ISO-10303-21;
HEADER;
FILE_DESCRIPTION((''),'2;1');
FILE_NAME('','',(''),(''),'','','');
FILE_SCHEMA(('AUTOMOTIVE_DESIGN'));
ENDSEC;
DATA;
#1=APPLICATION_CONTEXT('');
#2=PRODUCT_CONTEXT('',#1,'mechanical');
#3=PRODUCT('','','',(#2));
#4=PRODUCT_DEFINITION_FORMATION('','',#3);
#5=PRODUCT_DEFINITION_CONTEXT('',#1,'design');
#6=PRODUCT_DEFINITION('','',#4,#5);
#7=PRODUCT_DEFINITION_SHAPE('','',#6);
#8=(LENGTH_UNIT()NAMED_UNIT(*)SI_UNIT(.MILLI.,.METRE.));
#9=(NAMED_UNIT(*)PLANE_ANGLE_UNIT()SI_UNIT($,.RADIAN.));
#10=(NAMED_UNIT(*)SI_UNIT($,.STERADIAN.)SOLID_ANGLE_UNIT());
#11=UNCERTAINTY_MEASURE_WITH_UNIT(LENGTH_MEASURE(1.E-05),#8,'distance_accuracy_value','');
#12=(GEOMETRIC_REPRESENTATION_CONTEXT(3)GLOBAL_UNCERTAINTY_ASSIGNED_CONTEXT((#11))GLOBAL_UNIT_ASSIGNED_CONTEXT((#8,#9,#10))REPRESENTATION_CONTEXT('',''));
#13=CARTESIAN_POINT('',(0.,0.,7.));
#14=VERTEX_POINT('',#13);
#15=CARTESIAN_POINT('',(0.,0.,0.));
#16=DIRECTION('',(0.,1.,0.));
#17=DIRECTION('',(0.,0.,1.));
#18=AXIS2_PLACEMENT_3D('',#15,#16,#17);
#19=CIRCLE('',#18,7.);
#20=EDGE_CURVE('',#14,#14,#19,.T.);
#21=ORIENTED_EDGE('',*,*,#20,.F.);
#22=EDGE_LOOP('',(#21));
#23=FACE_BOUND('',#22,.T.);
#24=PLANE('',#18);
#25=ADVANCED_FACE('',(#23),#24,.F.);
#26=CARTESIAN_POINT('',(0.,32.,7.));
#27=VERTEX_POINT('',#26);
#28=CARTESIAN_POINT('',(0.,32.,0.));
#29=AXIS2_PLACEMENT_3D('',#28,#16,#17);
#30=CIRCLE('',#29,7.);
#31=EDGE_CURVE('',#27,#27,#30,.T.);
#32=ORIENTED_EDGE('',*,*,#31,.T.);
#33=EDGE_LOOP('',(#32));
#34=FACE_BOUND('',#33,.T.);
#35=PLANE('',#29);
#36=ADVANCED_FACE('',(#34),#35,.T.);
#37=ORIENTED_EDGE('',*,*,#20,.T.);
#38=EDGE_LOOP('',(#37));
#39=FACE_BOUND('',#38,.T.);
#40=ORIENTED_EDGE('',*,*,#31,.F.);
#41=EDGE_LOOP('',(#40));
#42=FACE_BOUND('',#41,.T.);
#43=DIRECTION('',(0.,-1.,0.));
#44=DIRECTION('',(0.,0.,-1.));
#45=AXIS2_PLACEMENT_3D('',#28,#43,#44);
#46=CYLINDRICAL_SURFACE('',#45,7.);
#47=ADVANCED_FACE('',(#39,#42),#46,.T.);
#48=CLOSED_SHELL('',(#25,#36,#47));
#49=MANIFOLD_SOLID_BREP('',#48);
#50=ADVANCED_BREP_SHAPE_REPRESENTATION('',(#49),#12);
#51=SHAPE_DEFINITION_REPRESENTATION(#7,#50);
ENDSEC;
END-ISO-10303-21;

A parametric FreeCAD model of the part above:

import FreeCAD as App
import Part
import Sketcher

V = App.Vector

doc = App.newDocument("Part")
params = doc.addObject("Spreadsheet::Sheet", "Params")
for row, (alias, value) in enumerate([
    ("sketch1_diameter", "14 mm"),
    ("pad1_length", "32 mm"),
], start=1):
    params.set(f"A{row}", alias)
    params.set(f"B{row}", "=" + value)
    params.setAlias(f"B{row}", alias)

body = doc.addObject("PartDesign::Body", "Body")

# Sketch on XZ plane
sketch1 = body.newObject("Sketcher::SketchObject", "Sketch")
sketch1.AttachmentSupport = (doc.getObject("XZ_Plane"), [""])
sketch1.MapMode = "FlatFace"
sketch1.addGeometry(Part.Circle(V(0, 0, 0), V(0, 0, 1), 7), False)
sketch1.addConstraint([
    Sketcher.Constraint("Coincident", 0, 3, -1, 1),
    Sketcher.Constraint("Diameter", 0, 14.0),
])
sketch1.setExpression("Constraints[1]", "Params.sketch1_diameter")
pad1 = body.newObject("PartDesign::Pad", "Pad")
pad1.Profile = sketch1
pad1.setExpression("Length", "Params.pad1_length")
pad1.Reversed = True

doc.recompute()
